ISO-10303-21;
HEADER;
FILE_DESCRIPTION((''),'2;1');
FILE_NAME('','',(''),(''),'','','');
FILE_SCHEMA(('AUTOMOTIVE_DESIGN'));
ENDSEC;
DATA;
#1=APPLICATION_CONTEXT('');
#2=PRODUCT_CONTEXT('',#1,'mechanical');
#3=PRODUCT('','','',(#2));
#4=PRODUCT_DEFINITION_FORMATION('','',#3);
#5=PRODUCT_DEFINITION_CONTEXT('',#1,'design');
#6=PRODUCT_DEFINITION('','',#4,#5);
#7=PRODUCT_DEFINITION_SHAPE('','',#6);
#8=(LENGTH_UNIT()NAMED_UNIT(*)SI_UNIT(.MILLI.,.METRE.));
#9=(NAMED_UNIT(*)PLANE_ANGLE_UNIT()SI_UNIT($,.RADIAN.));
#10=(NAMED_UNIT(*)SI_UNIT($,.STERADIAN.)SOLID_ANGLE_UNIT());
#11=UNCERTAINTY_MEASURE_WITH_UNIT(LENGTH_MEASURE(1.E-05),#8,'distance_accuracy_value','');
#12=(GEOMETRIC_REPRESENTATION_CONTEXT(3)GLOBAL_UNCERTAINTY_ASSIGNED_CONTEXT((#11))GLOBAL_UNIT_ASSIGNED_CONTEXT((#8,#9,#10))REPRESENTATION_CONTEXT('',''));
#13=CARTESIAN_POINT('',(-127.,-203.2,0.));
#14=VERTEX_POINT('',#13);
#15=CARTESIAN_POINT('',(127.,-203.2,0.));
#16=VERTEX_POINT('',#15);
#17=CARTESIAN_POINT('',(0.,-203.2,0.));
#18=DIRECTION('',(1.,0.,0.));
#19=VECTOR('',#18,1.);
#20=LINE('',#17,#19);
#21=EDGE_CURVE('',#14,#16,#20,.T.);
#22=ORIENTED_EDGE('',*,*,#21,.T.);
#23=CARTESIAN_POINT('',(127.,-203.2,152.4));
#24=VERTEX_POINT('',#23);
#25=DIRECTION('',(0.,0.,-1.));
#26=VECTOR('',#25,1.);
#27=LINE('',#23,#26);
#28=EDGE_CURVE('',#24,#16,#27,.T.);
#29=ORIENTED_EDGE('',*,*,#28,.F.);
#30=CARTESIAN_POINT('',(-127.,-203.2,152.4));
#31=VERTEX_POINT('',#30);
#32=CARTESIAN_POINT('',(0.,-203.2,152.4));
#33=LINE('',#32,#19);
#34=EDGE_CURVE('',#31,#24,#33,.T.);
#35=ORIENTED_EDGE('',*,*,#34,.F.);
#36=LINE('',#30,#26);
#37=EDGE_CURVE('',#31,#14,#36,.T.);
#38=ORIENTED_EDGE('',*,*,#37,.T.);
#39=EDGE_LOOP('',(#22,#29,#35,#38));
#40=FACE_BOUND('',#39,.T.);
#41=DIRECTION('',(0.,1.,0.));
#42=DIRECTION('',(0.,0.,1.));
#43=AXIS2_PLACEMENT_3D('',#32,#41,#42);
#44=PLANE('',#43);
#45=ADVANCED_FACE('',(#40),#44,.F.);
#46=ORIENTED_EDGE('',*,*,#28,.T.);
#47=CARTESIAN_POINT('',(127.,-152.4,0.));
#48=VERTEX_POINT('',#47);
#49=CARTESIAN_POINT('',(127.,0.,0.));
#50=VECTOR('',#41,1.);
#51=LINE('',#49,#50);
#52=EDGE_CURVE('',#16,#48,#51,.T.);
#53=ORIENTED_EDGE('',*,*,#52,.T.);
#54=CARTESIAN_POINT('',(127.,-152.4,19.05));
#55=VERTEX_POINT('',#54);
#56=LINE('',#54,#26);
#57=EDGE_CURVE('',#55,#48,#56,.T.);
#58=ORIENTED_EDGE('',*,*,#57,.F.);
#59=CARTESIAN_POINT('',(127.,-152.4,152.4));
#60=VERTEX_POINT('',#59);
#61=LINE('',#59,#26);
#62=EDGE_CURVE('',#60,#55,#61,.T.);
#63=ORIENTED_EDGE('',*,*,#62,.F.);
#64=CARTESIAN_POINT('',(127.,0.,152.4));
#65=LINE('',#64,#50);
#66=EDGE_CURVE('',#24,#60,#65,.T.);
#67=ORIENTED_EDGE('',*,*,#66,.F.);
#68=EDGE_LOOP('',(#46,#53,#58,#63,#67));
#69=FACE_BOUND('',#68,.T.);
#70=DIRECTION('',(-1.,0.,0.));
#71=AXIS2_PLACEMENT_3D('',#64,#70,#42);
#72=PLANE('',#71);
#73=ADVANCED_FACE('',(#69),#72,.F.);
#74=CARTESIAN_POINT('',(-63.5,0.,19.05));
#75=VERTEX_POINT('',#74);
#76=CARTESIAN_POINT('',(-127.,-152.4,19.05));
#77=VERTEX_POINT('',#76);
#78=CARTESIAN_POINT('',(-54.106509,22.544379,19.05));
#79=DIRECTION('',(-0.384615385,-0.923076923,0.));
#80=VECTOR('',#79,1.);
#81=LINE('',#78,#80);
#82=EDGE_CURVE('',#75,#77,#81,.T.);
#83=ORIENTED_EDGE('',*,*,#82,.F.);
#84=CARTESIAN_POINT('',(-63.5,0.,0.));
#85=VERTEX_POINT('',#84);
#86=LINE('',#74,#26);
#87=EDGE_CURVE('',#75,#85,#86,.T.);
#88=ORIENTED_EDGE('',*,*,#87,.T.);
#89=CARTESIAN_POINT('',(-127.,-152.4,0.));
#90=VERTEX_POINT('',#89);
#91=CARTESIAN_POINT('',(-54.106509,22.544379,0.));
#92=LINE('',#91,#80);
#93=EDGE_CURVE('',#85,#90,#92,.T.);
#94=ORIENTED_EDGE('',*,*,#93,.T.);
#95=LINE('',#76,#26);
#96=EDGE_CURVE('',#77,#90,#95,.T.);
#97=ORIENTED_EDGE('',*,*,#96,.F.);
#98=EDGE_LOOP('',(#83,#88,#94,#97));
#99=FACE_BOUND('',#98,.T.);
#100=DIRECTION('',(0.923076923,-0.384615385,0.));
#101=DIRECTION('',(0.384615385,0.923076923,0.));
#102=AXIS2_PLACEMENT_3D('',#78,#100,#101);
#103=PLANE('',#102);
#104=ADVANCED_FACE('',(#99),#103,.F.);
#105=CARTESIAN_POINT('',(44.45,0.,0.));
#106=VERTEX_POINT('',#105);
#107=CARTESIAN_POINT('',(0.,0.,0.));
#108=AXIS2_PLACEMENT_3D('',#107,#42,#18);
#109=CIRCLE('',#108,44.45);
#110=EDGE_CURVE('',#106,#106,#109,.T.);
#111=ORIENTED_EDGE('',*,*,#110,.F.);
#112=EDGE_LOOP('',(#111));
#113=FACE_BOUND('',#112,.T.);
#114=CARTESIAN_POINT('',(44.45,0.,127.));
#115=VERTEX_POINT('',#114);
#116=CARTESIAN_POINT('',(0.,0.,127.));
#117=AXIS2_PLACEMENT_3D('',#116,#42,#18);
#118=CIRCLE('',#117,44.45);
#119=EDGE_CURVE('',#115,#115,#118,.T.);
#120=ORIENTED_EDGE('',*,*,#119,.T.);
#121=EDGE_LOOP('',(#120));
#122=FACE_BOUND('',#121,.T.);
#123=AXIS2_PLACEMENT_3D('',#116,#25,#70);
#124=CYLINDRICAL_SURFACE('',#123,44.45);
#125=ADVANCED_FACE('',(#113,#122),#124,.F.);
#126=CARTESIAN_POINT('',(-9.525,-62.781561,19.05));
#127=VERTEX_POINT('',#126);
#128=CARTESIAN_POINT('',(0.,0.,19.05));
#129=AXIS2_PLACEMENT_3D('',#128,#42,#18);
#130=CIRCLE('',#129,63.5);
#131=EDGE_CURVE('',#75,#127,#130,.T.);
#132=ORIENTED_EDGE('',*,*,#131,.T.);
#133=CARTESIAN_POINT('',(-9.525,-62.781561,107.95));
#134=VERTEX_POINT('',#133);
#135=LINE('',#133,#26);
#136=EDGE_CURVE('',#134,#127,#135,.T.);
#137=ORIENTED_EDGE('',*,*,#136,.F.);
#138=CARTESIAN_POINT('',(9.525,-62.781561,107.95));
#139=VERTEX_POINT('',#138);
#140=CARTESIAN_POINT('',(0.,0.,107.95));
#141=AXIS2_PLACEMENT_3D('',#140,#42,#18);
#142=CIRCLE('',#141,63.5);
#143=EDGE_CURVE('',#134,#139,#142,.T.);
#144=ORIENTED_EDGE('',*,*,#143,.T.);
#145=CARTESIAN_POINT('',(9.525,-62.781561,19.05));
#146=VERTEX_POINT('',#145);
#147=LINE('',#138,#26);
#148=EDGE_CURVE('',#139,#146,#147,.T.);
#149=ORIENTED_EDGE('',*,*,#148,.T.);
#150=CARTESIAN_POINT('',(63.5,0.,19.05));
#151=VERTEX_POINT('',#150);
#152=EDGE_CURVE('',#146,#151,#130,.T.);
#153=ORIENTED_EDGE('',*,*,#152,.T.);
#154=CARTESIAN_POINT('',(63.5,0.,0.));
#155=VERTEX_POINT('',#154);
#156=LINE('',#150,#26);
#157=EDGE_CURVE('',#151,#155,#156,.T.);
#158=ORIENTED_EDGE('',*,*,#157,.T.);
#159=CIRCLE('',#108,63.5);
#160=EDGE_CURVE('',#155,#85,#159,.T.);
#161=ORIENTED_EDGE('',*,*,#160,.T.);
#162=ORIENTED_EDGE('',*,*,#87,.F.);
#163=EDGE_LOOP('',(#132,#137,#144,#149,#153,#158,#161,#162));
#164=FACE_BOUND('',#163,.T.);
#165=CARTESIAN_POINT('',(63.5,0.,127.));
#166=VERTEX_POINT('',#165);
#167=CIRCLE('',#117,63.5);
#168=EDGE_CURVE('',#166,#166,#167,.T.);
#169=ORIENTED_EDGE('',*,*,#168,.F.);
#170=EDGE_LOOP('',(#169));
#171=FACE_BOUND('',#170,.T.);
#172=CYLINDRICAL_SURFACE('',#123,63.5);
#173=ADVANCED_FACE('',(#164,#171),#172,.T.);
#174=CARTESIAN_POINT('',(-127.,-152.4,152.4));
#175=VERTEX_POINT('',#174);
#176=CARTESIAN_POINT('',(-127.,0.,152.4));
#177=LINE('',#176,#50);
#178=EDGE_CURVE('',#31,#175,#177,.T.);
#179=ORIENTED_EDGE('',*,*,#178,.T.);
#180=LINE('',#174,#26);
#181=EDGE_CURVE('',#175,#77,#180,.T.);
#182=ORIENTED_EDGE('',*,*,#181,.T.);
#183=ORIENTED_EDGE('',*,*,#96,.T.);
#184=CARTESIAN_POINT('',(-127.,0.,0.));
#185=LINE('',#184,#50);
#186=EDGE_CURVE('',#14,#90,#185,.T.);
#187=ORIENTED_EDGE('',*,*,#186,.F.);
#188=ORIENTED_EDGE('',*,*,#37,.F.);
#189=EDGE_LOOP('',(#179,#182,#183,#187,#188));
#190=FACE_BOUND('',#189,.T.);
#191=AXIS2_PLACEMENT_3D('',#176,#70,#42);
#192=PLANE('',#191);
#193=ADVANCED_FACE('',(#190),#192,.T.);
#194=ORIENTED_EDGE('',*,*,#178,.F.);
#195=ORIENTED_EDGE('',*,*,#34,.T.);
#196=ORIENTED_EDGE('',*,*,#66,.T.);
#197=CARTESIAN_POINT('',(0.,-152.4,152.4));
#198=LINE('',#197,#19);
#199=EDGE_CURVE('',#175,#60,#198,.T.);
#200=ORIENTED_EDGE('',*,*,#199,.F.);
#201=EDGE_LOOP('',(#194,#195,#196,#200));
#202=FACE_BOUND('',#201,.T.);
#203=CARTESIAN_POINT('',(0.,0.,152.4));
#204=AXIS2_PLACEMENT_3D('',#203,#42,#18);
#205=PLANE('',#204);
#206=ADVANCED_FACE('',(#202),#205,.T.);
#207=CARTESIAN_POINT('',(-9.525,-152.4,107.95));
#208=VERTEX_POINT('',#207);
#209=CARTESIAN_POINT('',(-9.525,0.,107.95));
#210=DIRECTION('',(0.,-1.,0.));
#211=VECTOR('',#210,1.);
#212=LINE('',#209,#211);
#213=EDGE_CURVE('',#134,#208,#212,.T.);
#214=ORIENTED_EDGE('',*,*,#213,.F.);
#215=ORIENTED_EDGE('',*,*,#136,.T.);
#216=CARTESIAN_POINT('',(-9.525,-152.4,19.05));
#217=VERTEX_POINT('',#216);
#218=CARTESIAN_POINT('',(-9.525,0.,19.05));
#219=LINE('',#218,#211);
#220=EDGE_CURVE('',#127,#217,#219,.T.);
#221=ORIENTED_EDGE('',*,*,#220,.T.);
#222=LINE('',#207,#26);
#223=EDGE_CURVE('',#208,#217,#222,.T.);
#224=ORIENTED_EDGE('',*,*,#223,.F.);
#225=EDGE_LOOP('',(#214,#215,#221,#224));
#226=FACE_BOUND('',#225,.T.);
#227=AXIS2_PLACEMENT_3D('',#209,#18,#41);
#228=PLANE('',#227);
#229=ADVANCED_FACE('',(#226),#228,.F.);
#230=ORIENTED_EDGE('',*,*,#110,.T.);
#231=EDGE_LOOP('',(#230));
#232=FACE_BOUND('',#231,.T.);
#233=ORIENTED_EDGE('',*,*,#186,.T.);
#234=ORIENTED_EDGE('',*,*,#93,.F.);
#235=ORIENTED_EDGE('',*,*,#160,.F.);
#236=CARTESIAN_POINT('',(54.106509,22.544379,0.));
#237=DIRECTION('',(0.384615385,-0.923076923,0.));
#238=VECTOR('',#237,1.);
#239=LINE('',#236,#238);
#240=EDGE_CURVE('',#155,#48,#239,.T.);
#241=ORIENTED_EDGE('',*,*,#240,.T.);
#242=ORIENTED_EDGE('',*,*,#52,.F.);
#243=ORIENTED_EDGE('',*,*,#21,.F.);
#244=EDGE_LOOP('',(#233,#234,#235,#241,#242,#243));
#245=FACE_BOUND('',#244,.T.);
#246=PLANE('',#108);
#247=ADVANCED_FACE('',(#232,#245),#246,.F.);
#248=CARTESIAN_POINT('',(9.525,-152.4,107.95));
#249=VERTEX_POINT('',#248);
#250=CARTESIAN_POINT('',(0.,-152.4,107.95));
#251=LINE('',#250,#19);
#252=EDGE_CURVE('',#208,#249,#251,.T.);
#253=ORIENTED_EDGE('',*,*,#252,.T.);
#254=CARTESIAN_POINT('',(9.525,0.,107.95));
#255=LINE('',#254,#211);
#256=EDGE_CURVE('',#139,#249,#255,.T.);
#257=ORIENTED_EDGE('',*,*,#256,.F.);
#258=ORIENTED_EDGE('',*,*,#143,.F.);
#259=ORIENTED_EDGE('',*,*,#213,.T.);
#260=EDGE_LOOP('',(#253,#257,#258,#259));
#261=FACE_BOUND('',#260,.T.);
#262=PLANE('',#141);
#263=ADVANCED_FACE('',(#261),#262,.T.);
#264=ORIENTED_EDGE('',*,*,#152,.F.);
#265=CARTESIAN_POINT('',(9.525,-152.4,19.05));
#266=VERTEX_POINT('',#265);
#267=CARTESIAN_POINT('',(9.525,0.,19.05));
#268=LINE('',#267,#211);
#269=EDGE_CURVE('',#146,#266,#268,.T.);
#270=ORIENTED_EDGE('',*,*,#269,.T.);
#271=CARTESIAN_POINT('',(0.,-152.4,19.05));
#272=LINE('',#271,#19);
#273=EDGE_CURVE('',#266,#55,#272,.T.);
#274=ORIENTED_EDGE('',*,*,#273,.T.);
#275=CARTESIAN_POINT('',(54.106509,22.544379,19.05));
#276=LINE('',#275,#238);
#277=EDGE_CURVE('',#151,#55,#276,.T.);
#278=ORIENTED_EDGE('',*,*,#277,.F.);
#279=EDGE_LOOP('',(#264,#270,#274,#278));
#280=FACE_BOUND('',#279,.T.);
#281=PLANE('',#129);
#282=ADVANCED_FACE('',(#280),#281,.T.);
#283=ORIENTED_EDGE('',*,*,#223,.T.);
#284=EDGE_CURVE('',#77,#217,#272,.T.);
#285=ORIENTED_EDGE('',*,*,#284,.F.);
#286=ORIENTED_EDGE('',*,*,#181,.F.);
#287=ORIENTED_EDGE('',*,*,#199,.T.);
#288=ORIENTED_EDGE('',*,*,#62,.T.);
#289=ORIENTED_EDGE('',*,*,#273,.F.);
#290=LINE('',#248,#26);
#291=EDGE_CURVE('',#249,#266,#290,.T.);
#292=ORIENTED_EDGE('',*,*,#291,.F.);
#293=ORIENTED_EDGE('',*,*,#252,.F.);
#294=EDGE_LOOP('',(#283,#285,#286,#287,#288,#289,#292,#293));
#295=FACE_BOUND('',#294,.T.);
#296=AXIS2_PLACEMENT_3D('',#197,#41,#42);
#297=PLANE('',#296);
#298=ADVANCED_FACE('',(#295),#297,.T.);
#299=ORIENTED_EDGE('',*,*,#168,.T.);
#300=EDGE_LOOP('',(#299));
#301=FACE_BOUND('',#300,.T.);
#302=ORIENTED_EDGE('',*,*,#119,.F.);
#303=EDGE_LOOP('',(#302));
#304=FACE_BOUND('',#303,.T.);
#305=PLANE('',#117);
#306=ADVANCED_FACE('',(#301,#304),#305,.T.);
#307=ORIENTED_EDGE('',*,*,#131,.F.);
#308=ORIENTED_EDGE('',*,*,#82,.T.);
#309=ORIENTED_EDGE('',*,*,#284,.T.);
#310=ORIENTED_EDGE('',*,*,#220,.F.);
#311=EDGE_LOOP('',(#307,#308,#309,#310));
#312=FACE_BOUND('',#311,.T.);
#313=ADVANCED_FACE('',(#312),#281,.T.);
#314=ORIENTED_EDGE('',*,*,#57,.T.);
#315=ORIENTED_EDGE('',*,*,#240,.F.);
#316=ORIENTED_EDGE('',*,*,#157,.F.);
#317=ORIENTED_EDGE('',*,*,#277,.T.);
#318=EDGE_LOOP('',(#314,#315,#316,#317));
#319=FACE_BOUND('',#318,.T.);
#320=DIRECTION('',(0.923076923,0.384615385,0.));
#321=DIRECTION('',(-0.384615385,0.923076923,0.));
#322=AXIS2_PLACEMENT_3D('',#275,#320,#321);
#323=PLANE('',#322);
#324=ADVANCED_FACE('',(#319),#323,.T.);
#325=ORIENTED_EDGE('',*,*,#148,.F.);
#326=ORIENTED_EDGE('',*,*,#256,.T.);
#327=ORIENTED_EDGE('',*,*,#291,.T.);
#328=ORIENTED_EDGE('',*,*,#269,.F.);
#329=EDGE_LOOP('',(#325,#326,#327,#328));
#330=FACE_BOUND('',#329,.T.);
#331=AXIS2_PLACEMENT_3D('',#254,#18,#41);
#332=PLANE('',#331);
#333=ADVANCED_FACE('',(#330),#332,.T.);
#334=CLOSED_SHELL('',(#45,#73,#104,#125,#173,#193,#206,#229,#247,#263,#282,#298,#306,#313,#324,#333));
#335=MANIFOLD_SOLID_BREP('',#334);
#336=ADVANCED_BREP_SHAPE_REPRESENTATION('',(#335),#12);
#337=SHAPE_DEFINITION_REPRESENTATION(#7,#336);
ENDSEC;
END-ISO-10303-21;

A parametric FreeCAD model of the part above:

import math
import FreeCAD as App
import Part
import Sketcher

V = App.Vector
Q = App.Units.Quantity

doc = App.newDocument("Part")
params = doc.addObject("Spreadsheet::Sheet", "Params")
for row, (alias, value) in enumerate([
    ("sketch1_radius", "2.5 in"),
    ("sketch1_width", "0.75 in"),
    ("pad1_length", "4.25 in"),
    ("sketch2_radius", "2.5 in"),
    ("sketch2_width", "4.625 in"),
    ("pad2_length", "0.75 in"),
    ("sketch3_diameter", "5 in"),
    ("sketch3_diameter2", "3.5 in"),
    ("pad3_length", "5 in"),
    ("sketch4_width", "10 in"),
    ("sketch4_height", "2 in"),
    ("pad4_length", "6 in"),
], start=1):
    params.set(f"A{row}", alias)
    params.set(f"B{row}", "=" + value)
    params.setAlias(f"B{row}", alias)

body = doc.addObject("PartDesign::Body", "Body")

sketch1 = doc.addObject("Sketcher::SketchObject", "Sketch")
body.addObject(sketch1)
sketch1.AttachmentSupport = (doc.XY_Plane, [""])
sketch1.MapMode = "FlatFace"
sketch1.addGeometry(Part.ArcOfCircle(Part.Circle(V(0, 0, 0), V(0, 0, 1), 63), math.radians(-98.63), math.radians(-81.37)), False)
sketch1.addGeometry(Part.LineSegment(V(-10, -63, 0), V(-10, -152, 0)), False)
sketch1.addGeometry(Part.LineSegment(V(-10, -152, 0), V(10, -152, 0)), False)
sketch1.addGeometry(Part.LineSegment(V(10, -152, 0), V(10, -63, 0)), False)
sketch1.addConstraint(Sketcher.Constraint("Coincident", 0, 1, 1, 1))
sketch1.addConstraint(Sketcher.Constraint("Coincident", 1, 2, 2, 1))
sketch1.addConstraint(Sketcher.Constraint("Coincident", 2, 2, 3, 1))
sketch1.addConstraint(Sketcher.Constraint("Coincident", 3, 2, 0, 2))
sketch1.addConstraint(Sketcher.Constraint("Vertical", 1))
sketch1.addConstraint(Sketcher.Constraint("Horizontal", 2))
sketch1.addConstraint(Sketcher.Constraint("Vertical", 3))
sketch1.addConstraint(Sketcher.Constraint("Coincident", 0, 3, -1, 1))
sketch1.addConstraint(Sketcher.Constraint("Horizontal", 0, 1, 3, 2))
sketch1.addConstraint(Sketcher.Constraint("Radius", 0, Q("2.5 in")))
sketch1.addConstraint(Sketcher.Constraint("DistanceY", 1, 2, -1, 1, Q("6 in")))
sketch1.addConstraint(Sketcher.Constraint("DistanceX", 2, 1, 2, 2, Q("0.75 in")))
sketch1.setExpression("Constraints[9]", "Params.sketch1_radius")
sketch1.setExpression("Constraints[11]", "Params.sketch1_width")
pad1 = doc.addObject("PartDesign::Pad", "Pad")
body.addObject(pad1)
pad1.Profile = sketch1
pad1.setExpression("Length", "Params.pad1_length")

sketch2 = doc.addObject("Sketcher::SketchObject", "Sketch001")
body.addObject(sketch2)
sketch2.AttachmentSupport = (doc.XY_Plane, [""])
sketch2.MapMode = "FlatFace"
sketch2.addGeometry(Part.ArcOfCircle(Part.Circle(V(0, 0, 0), V(0, 0, 1), 63), math.radians(180), math.radians(261)), False)
sketch2.addGeometry(Part.LineSegment(V(-64, 0, 0), V(-127, -152, 0)), False)
sketch2.addGeometry(Part.LineSegment(V(-127, -152, 0), V(-10, -152, 0)), False)
sketch2.addGeometry(Part.LineSegment(V(-10, -152, 0), V(-10, -63, 0)), False)
sketch2.addGeometry(Part.LineSegment(V(127, -152, 0), V(64, 0, 0)), False)
sketch2.addGeometry(Part.ArcOfCircle(Part.Circle(V(0, 0, 0), V(0, 0, 1), 63), math.radians(-81), math.radians(0)), False)
sketch2.addGeometry(Part.LineSegment(V(10, -63, 0), V(10, -152, 0)), False)
sketch2.addGeometry(Part.LineSegment(V(10, -152, 0), V(127, -152, 0)), False)
sketch2.addConstraint(Sketcher.Constraint("Coincident", 0, 1, 1, 1))
sketch2.addConstraint(Sketcher.Constraint("Coincident", 1, 2, 2, 1))
sketch2.addConstraint(Sketcher.Constraint("Coincident", 2, 2, 3, 1))
sketch2.addConstraint(Sketcher.Constraint("Coincident", 3, 2, 0, 2))
sketch2.addConstraint(Sketcher.Constraint("Coincident", 4, 2, 5, 2))
sketch2.addConstraint(Sketcher.Constraint("Coincident", 5, 1, 6, 1))
sketch2.addConstraint(Sketcher.Constraint("Coincident", 6, 2, 7, 1))
sketch2.addConstraint(Sketcher.Constraint("Coincident", 7, 2, 4, 1))
sketch2.addConstraint(Sketcher.Constraint("Horizontal", 2))
sketch2.addConstraint(Sketcher.Constraint("Vertical", 3))
sketch2.addConstraint(Sketcher.Constraint("Vertical", 6))
sketch2.addConstraint(Sketcher.Constraint("Horizontal", 7))
sketch2.addConstraint(Sketcher.Constraint("Coincident", 0, 3, -1, 1))
sketch2.addConstraint(Sketcher.Constraint("Coincident", 5, 3, -1, 1))
sketch2.addConstraint(Sketcher.Constraint("Equal", 0, 5))
sketch2.addConstraint(Sketcher.Constraint("Symmetric", 2, 2, 6, 2, -2))
sketch2.addConstraint(Sketcher.Constraint("PointOnObject", 0, 1, -1))
sketch2.addConstraint(Sketcher.Constraint("PointOnObject", 4, 2, -1))
sketch2.addConstraint(Sketcher.Constraint("Equal", 2, 7))
sketch2.addConstraint(Sketcher.Constraint("Radius", 0, Q("2.5 in")))
sketch2.addConstraint(Sketcher.Constraint("DistanceX", 1, 2, -1, 1, Q("5 in")))
sketch2.addConstraint(Sketcher.Constraint("DistanceY", 1, 2, -1, 1, Q("6 in")))
sketch2.addConstraint(Sketcher.Constraint("DistanceX", 2, 1, 2, 2, Q("4.625 in")))
sketch2.setExpression("Constraints[19]", "Params.sketch2_radius")
sketch2.setExpression("Constraints[22]", "Params.sketch2_width")
pad2 = doc.addObject("PartDesign::Pad", "Pad001")
body.addObject(pad2)
pad2.Profile = sketch2
pad2.setExpression("Length", "Params.pad2_length")

sketch3 = doc.addObject("Sketcher::SketchObject", "Sketch002")
body.addObject(sketch3)
sketch3.AttachmentSupport = (doc.XY_Plane, [""])
sketch3.MapMode = "FlatFace"
sketch3.addGeometry(Part.Circle(V(0, 0, 0), V(0, 0, 1), 64), False)
sketch3.addGeometry(Part.Circle(V(0, 0, 0), V(0, 0, 1), 44), False)
sketch3.addConstraint(Sketcher.Constraint("Coincident", 0, 3, -1, 1))
sketch3.addConstraint(Sketcher.Constraint("Coincident", 1, 3, -1, 1))
sketch3.addConstraint(Sketcher.Constraint("Diameter", 0, Q("5 in")))
sketch3.addConstraint(Sketcher.Constraint("Diameter", 1, Q("3.5 in")))
sketch3.setExpression("Constraints[2]", "Params.sketch3_diameter")
sketch3.setExpression("Constraints[3]", "Params.sketch3_diameter2")
pad3 = doc.addObject("PartDesign::Pad", "Pad002")
body.addObject(pad3)
pad3.Profile = sketch3
pad3.setExpression("Length", "Params.pad3_length")

sketch4 = doc.addObject("Sketcher::SketchObject", "Sketch003")
body.addObject(sketch4)
sketch4.AttachmentSupport = (doc.XY_Plane, [""])
sketch4.MapMode = "FlatFace"
sketch4.addGeometry(Part.LineSegment(V(-127, -152, 0), V(-127, -203, 0)), False)
sketch4.addGeometry(Part.LineSegment(V(-127, -203, 0), V(127, -203, 0)), False)
sketch4.addGeometry(Part.LineSegment(V(127, -203, 0), V(127, -152, 0)), False)
sketch4.addGeometry(Part.LineSegment(V(127, -152, 0), V(-127, -152, 0)), False)
sketch4.addConstraint(Sketcher.Constraint("Coincident", 0, 2, 1, 1))
sketch4.addConstraint(Sketcher.Constraint("Coincident", 1, 2, 2, 1))
sketch4.addConstraint(Sketcher.Constraint("Coincident", 2, 2, 3, 1))
sketch4.addConstraint(Sketcher.Constraint("Coincident", 3, 2, 0, 1))
sketch4.addConstraint(Sketcher.Constraint("Vertical", 0))
sketch4.addConstraint(Sketcher.Constraint("Horizontal", 1))
sketch4.addConstraint(Sketcher.Constraint("Vertical", 2))
sketch4.addConstraint(Sketcher.Constraint("Horizontal", 3))
sketch4.addConstraint(Sketcher.Constraint("DistanceX", 1, 1, 1, 2, Q("10 in")))
sketch4.addConstraint(Sketcher.Constraint("DistanceY", 0, 2, 0, 1, Q("2 in")))
sketch4.addConstraint(Sketcher.Constraint("DistanceX", 0, 2, -1, 1, Q("5 in")))
sketch4.addConstraint(Sketcher.Constraint("DistanceY", 0, 2, -1, 1, Q("8 in")))
sketch4.setExpression("Constraints[8]", "Params.sketch4_width")
sketch4.setExpression("Constraints[9]", "Params.sketch4_height")
pad4 = doc.addObject("PartDesign::Pad", "Pad003")
body.addObject(pad4)
pad4.Profile = sketch4
pad4.setExpression("Length", "Params.pad4_length")

doc.recompute()
